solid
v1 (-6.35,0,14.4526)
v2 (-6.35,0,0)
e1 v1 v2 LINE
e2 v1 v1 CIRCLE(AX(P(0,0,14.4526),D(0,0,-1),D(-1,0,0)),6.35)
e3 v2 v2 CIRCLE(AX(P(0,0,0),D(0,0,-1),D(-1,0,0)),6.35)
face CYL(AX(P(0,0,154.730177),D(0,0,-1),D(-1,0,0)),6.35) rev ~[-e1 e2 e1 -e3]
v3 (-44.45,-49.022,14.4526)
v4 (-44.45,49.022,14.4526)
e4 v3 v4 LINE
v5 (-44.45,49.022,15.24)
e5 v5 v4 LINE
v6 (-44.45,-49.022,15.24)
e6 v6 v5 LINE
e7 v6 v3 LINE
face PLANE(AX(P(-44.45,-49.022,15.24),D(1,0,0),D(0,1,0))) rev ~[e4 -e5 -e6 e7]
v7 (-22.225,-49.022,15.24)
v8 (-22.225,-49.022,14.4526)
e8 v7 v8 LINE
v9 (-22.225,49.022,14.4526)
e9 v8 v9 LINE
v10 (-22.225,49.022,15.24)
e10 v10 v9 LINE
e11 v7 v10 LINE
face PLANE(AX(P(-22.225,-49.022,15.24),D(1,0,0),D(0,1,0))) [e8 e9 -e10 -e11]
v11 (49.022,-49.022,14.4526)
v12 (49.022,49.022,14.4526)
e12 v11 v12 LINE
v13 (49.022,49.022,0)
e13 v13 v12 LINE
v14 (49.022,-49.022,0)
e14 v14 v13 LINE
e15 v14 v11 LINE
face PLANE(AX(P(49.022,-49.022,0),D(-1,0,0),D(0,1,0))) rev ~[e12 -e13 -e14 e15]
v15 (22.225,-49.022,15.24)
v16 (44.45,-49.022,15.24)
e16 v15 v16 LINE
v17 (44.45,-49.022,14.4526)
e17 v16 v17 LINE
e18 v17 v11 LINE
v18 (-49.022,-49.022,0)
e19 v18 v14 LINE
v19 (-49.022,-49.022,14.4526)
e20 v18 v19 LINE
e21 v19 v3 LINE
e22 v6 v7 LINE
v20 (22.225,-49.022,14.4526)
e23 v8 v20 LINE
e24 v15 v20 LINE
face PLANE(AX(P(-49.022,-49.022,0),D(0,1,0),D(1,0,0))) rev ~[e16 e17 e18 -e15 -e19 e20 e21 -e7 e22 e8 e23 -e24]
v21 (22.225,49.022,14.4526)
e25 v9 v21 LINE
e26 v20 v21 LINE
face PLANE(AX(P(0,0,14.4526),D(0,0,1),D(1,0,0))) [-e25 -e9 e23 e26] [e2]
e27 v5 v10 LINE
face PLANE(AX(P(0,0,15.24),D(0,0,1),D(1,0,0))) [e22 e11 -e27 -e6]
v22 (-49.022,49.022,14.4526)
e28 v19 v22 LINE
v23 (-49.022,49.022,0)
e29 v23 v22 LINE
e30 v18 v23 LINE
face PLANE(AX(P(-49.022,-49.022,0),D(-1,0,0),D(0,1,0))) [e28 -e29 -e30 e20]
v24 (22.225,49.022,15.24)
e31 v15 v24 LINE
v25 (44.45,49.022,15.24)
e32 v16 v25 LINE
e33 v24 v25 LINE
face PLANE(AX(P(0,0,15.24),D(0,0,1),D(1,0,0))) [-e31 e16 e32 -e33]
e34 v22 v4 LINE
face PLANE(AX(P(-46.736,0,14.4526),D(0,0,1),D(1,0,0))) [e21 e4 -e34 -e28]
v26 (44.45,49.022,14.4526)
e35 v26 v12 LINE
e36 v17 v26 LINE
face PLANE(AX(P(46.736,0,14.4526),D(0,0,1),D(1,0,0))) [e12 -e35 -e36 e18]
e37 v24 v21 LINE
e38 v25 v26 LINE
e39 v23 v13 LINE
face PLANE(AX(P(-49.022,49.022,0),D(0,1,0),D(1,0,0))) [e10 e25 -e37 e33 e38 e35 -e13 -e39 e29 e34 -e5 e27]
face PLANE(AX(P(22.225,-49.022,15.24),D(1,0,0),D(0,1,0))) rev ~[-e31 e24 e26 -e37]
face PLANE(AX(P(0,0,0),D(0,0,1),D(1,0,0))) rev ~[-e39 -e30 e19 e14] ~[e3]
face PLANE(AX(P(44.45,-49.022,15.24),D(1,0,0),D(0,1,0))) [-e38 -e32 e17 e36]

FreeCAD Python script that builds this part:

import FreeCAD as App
import Part
import Sketcher
Q = App.Units.Quantity


def add_polygon(sketch, points):
    """Adds a closed chain of lines whose ends are joined by coincident constraints."""
    first, n = sketch.GeometryCount, len(points)
    for a, b in zip(points, points[1:] + points[:1]):
        sketch.addGeometry(Part.LineSegment(App.Vector(*a, 0), App.Vector(*b, 0)), False)
    for i in range(n):
        sketch.addConstraint(Sketcher.Constraint("Coincident", first + i, 2, first + (i + 1) % n, 1))

doc = App.newDocument("Part")
body = doc.addObject("PartDesign::Body", "Body")

sketch1 = body.newObject("Sketcher::SketchObject", "Sketch")
sketch1.AttachmentSupport = (doc.getObject("XY_Plane"), [""])
sketch1.MapMode = "FlatFace"
add_polygon(sketch1, [(-49, 49), (-49, -49), (49, -49), (49, 49)])
sketch1.addConstraint(Sketcher.Constraint("Vertical", 0))
sketch1.addConstraint(Sketcher.Constraint("Horizontal", 1))
sketch1.addConstraint(Sketcher.Constraint("Vertical", 2))
sketch1.addConstraint(Sketcher.Constraint("Horizontal", 3))
sketch1.addConstraint(Sketcher.Constraint("Symmetric", 0, 2, 2, 2, -1, 1))
sketch1.addConstraint(Sketcher.Constraint("Equal", 3, 0))
sketch1.addConstraint(Sketcher.Constraint("DistanceX", 1, 1, 1, 2, Q("3.86 in")))
pad1 = body.newObject("PartDesign::Pad", "Pad")
pad1.Profile = sketch1
pad1.Length = Q("0.6 in")

sketch2 = body.newObject("Sketcher::SketchObject", "Sketch001")
sketch2.AttachmentSupport = (doc.getObject("XY_Plane"), [""])
sketch2.MapMode = "FlatFace"
sketch2.AttachmentOffset = App.Placement(App.Vector(0, 0, 0.6 * 25.4), App.Rotation())
sketch2.addGeometry(Part.Circle(App.Vector(0, 0, 0), App.Vector(0, 0, 1), 6), False)
sketch2.addConstraint(Sketcher.Constraint("Coincident", 0, 3, -1, 1))
sketch2.addConstraint(Sketcher.Constraint("Diameter", 0, Q("0.5 in")))
doc.recompute()
hole = body.newObject("PartDesign::Hole", "Hole")
hole.Profile = sketch2
hole.ThreadType = "None"
hole.Diameter = Q("0.5 in")
hole.DepthType = "ThroughAll"

sketch3 = body.newObject("Sketcher::SketchObject", "Sketch002")
sketch3.AttachmentSupport = (doc.getObject("XY_Plane"), [""])
sketch3.MapMode = "FlatFace"
sketch3.AttachmentOffset = App.Placement(App.Vector(0, 0, 0.6 * 25.4), App.Rotation())
add_polygon(sketch3, [(-49, 49), (-49, -49), (-44.5, -49), (-44.5, 49)])
add_polygon(sketch3, [(44.5, 49), (44.5, -49), (49, -49), (49, 49)])
add_polygon(sketch3, [(-22.2, 49), (-22.2, -49), (22.2, -49), (22.2, 49)])
sketch3.addConstraint(Sketcher.Constraint("Vertical", 0))
sketch3.addConstraint(Sketcher.Constraint("Horizontal", 1))
sketch3.addConstraint(Sketcher.Constraint("Vertical", 2))
sketch3.addConstraint(Sketcher.Constraint("Horizontal", 3))
sketch3.addConstraint(Sketcher.Constraint("Vertical", 4))
sketch3.addConstraint(Sketcher.Constraint("Horizontal", 5))
sketch3.addConstraint(Sketcher.Constraint("Vertical", 6))
sketch3.addConstraint(Sketcher.Constraint("Horizontal", 7))
sketch3.addConstraint(Sketcher.Constraint("Vertical", 8))
sketch3.addConstraint(Sketcher.Constraint("Horizontal", 9))
sketch3.addConstraint(Sketcher.Constraint("Vertical", 10))
sketch3.addConstraint(Sketcher.Constraint("Horizontal", 11))
sketch3.addConstraint(Sketcher.Constraint("Symmetric", 2, 2, 4, 2, -1, 1))
sketch3.addConstraint(Sketcher.Constraint("Symmetric", 0, 2, 6, 2, -1, 1))
sketch3.addConstraint(Sketcher.Constraint("Symmetric", 8, 2, 10, 2, -1, 1))
sketch3.addConstraint(Sketcher.Constraint("Horizontal", 1, 2, 4, 2))
sketch3.addConstraint(Sketcher.Constraint("Horizontal", 5, 2, 8, 2))
sketch3.addConstraint(Sketcher.Constraint("DistanceX", 1, 1, 1, 2, Q("0.18 in")))
sketch3.addConstraint(Sketcher.Constraint("DistanceX", 9, 1, 9, 2, Q("1.75 in")))
sketch3.addConstraint(Sketcher.Constraint("DistanceY", 0, 2, 0, 1, Q("3.86 in")))
sketch3.addConstraint(Sketcher.Constraint("DistanceX", 1, 2, 4, 2, Q("3.5 in")))
pocket1 = body.newObject("PartDesign::Pocket", "Pocket")
pocket1.Profile = sketch3
pocket1.Length = Q("0.031 in")

doc.recompute()
